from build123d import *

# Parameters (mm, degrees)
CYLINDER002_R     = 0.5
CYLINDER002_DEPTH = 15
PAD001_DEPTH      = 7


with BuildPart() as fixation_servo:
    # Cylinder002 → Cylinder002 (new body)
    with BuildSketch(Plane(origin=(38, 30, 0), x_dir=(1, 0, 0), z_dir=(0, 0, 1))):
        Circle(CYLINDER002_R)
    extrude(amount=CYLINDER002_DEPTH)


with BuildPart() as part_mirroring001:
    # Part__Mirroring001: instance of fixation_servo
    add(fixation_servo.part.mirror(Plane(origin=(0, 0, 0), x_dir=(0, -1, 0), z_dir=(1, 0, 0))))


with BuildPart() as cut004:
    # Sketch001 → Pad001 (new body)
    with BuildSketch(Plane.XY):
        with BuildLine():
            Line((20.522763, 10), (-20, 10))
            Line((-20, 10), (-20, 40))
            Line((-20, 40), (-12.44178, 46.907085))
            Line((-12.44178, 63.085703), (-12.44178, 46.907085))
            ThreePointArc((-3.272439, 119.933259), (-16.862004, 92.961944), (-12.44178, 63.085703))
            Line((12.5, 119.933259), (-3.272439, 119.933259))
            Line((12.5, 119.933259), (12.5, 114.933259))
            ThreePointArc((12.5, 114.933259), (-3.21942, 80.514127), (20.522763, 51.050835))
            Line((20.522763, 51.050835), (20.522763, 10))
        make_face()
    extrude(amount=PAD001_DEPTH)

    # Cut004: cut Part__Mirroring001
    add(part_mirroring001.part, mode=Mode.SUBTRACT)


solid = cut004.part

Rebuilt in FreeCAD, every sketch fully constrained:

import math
import FreeCAD as App
import Part
import Sketcher
Q = App.Units.Quantity

doc = App.newDocument("Part")
body = doc.addObject("PartDesign::Body", "Body")

# Sketch on XY plane
sketch1 = doc.addObject("Sketcher::SketchObject", "Sketch")
body.addObject(sketch1)
sketch1.AttachmentSupport = (doc.XY_Plane, [""])
sketch1.MapMode = "FlatFace"
sketch1.addGeometry(Part.Circle(App.Vector(38, 30, 0), App.Vector(0, 0, 1), 0.5), False)
sketch1.addConstraint([
    Sketcher.Constraint("Diameter", 0, Q("1 mm")),
    Sketcher.Constraint("DistanceX", -1, 1, 0, 3, Q("38 mm")),
    Sketcher.Constraint("DistanceY", -1, 1, 0, 3, Q("30 mm")),
])
pad1 = doc.addObject("PartDesign::Pad", "Pad")
body.addObject(pad1)
pad1.Profile = sketch1
pad1.Length = 15
body2 = doc.addObject("PartDesign::Body", "Body001")
doc.recompute()

mirroring = doc.addObject("Part::Mirroring", "Mirroring")
mirroring.Source = body
mirroring.Base = App.Vector(0, 0, 0)
mirroring.Normal = App.Vector(1, 0, 0)
body2.BaseFeature = mirroring
doc.recompute()
body3 = doc.addObject("PartDesign::Body", "Body002")

# Sketch on XY plane
sketch2 = doc.addObject("Sketcher::SketchObject", "Sketch001")
body3.addObject(sketch2)
sketch2.AttachmentSupport = (doc.getObject("XY_Plane002"), [""])
sketch2.MapMode = "FlatFace"
sketch2.addGeometry([
    Part.LineSegment(App.Vector(-20, 10, 0), App.Vector(21, 10, 0)),  # 0
    Part.LineSegment(App.Vector(21, 10, 0), App.Vector(21, 51, 0)),  # 1
    Part.ArcOfCircle(Part.Circle(App.Vector(32, 85, 0), App.Vector(0, 0, 1), 36), math.radians(124), math.radians(251)),  # 2
    Part.LineSegment(App.Vector(12, 115, 0), App.Vector(12, 120, 0)),  # 3
    Part.LineSegment(App.Vector(12, 120, 0), App.Vector(-3, 120, 0)),  # 4
    Part.ArcOfCircle(Part.Circle(App.Vector(32, 85, 0), App.Vector(0, 0, 1), 50), math.radians(136), math.radians(206)),  # 5
    Part.LineSegment(App.Vector(-12, 63, 0), App.Vector(-12, 47, 0)),  # 6
    Part.LineSegment(App.Vector(-12, 47, 0), App.Vector(-20, 40, 0)),  # 7
    Part.LineSegment(App.Vector(-20, 40, 0), App.Vector(-20, 10, 0)),  # 8
], False)
sketch2.addConstraint([
    Sketcher.Constraint("Coincident", 0, 2, 1, 1),
    Sketcher.Constraint("Coincident", 1, 2, 2, 2),
    Sketcher.Constraint("Coincident", 2, 1, 3, 1),
    Sketcher.Constraint("Coincident", 3, 2, 4, 1),
    Sketcher.Constraint("Coincident", 4, 2, 5, 1),
    Sketcher.Constraint("Coincident", 5, 2, 6, 1),
    Sketcher.Constraint("Coincident", 6, 2, 7, 1),
    Sketcher.Constraint("Coincident", 7, 2, 8, 1),
    Sketcher.Constraint("Coincident", 8, 2, 0, 1),
    Sketcher.Constraint("Horizontal", 0),
    Sketcher.Constraint("Vertical", 1),
    Sketcher.Constraint("Vertical", 3),
    Sketcher.Constraint("Horizontal", 4),
    Sketcher.Constraint("Vertical", 6),
    Sketcher.Constraint("Vertical", 8),
    Sketcher.Constraint("Coincident", 5, 3, 2, 3),
    Sketcher.Constraint("Radius", 2, Q("36 mm")),
    Sketcher.Constraint("Radius", 5, Q("50 mm")),
    Sketcher.Constraint("DistanceY", 3, 1, 3, 2, Q("5 mm")),
    Sketcher.Constraint("DistanceY", 8, 2, 8, 1, Q("30 mm")),
    Sketcher.Constraint("DistanceY", -1, 1, 2, 3, Q("85 mm")),
    Sketcher.Constraint("DistanceY", -1, 1, 0, 2, Q("10 mm")),
    Sketcher.Constraint("DistanceX", 7, 2, -1, 1, Q("20 mm")),
    Sketcher.Constraint("DistanceX", 2, 1, 2, 3, Q("20 mm")),
    Sketcher.Constraint("DistanceX", -1, 1, 2, 3, Q("32.5 mm")),
    Sketcher.Constraint("DistanceY", 6, 2, 6, 1, Q("16.178618 mm")),
    Sketcher.Constraint("DistanceX", 4, 2, 1, 2, Q("23.795202 mm")),
    Sketcher.Constraint("DistanceX", 5, 2, -1, 1, Q("12.44178 mm")),
])
pad2 = doc.addObject("PartDesign::Pad", "Pad001")
body3.addObject(pad2)
pad2.Profile = sketch2
pad2.Length = 7
doc.recompute()

boolean = doc.addObject("PartDesign::Boolean", "Boolean")
body3.addObject(boolean)
boolean.Type = "Cut"
boolean.addObjects([body2])
mirroring.Visibility = False

doc.recompute()
